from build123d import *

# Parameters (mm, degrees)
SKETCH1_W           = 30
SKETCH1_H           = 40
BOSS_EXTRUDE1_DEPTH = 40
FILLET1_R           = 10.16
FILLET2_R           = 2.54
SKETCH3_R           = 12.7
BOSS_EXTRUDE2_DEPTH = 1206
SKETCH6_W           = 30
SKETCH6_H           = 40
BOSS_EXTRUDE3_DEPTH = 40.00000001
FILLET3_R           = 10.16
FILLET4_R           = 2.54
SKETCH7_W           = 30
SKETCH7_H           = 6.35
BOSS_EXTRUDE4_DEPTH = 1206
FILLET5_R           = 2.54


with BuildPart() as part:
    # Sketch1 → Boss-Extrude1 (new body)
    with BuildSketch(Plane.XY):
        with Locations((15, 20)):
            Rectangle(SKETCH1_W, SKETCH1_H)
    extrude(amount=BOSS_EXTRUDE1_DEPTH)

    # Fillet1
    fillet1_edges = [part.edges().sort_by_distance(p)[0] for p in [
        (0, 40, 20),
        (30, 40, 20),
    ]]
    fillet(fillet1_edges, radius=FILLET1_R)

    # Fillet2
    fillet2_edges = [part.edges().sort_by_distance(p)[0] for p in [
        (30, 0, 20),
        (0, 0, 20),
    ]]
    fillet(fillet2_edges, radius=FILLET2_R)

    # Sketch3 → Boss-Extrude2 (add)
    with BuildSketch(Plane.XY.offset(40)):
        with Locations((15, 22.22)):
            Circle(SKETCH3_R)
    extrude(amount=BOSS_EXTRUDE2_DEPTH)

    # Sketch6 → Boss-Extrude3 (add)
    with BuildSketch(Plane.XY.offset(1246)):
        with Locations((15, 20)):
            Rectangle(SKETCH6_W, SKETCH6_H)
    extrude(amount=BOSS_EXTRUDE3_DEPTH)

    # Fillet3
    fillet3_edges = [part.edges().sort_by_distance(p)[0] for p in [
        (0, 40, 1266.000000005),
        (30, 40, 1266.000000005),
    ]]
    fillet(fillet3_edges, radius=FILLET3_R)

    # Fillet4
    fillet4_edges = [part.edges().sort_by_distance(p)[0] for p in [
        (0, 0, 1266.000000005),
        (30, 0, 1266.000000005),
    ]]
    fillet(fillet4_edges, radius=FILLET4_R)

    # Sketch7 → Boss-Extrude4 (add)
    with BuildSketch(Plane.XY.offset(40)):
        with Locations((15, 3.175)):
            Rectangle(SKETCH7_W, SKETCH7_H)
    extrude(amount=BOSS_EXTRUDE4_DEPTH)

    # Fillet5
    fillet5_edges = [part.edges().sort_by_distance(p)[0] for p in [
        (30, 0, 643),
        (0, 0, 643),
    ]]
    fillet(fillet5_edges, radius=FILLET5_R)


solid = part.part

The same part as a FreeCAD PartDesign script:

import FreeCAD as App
import Part
import Sketcher
from FreeCAD import Vector
Q = App.Units.Quantity


def edges_at(feature, points):
    """Names of the edges that pass closest to the given points."""
    edges = feature.Shape.Edges
    near = lambda p: min(range(len(edges)), key=lambda i: edges[i].distToShape(Part.Vertex(*p))[0])
    return sorted({f"Edge{near(p) + 1}" for p in points})


def add_polygon(sketch, points):
    """Adds a closed chain of lines whose ends are joined by coincident constraints."""
    first, n = sketch.GeometryCount, len(points)
    for a, b in zip(points, points[1:] + points[:1]):
        sketch.addGeometry(Part.LineSegment(App.Vector(*a, 0), App.Vector(*b, 0)), False)
    for i in range(n):
        sketch.addConstraint(Sketcher.Constraint("Coincident", first + i, 2, first + (i + 1) % n, 1))

doc = App.newDocument("Part")
body = doc.addObject("PartDesign::Body", "Body")

# Sketch on XY plane
sketch1 = doc.addObject("Sketcher::SketchObject", "Sketch")
body.addObject(sketch1)
sketch1.AttachmentSupport = (doc.XY_Plane, [""])
sketch1.MapMode = "FlatFace"
add_polygon(sketch1, [(0, 40), (0, 0), (30, 0), (30, 40)])  # lines 0-3
sketch1.addConstraint(Sketcher.Constraint("Vertical", 0))
sketch1.addConstraint(Sketcher.Constraint("Horizontal", 1))
sketch1.addConstraint(Sketcher.Constraint("Vertical", 2))
sketch1.addConstraint(Sketcher.Constraint("Horizontal", 3))
sketch1.addConstraint(Sketcher.Constraint("Coincident", 0, 2, -1, 1))
sketch1.addConstraint(Sketcher.Constraint("DistanceX", 1, 1, 1, 2, 30.0))
sketch1.addConstraint(Sketcher.Constraint("DistanceY", 0, 2, 0, 1, 40.0))
pad1 = doc.addObject("PartDesign::Pad", "Pad")
body.addObject(pad1)
pad1.Profile = sketch1
pad1.Length = 40
doc.recompute()

fillet = doc.addObject("PartDesign::Fillet", "Fillet")
body.addObject(fillet)
fillet.Base = (pad1, edges_at(pad1, [(0, 40, 20), (30, 40, 20)]))
fillet.Radius = Q("0.4 in")
doc.recompute()

fillet2 = doc.addObject("PartDesign::Fillet", "Fillet001")
body.addObject(fillet2)
fillet2.Base = (fillet, edges_at(fillet, [(30, 0, 20), (0, 0, 20)]))
fillet2.Radius = Q("0.1 in")

# Sketch on XY plane
sketch2 = doc.addObject("Sketcher::SketchObject", "Sketch001")
body.addObject(sketch2)
sketch2.AttachmentSupport = (doc.XY_Plane, [""])
sketch2.MapMode = "FlatFace"
sketch2.AttachmentOffset = App.Placement(Vector(0, 0, 40), App.Rotation())
sketch2.addGeometry(Part.Circle(Vector(15, 22, 0), Vector(0, 0, 1), 13), False)
sketch2.addConstraint(Sketcher.Constraint("Diameter", 0, Q("1 in")))
sketch2.addConstraint(Sketcher.Constraint("DistanceX", -1, 1, 0, 3, 15.0))
sketch2.addConstraint(Sketcher.Constraint("DistanceY", -1, 1, 0, 3, 22.22))
pad2 = doc.addObject("PartDesign::Pad", "Pad001")
body.addObject(pad2)
pad2.Profile = sketch2
pad2.Length = 1206

# Sketch on XY plane
sketch3 = doc.addObject("Sketcher::SketchObject", "Sketch002")
body.addObject(sketch3)
sketch3.AttachmentSupport = (doc.XY_Plane, [""])
sketch3.MapMode = "FlatFace"
sketch3.AttachmentOffset = App.Placement(Vector(0, 0, 1246), App.Rotation())
add_polygon(sketch3, [(0, 40), (0, 0), (30, 0), (30, 40)])  # lines 0-3
sketch3.addConstraint(Sketcher.Constraint("Vertical", 0))
sketch3.addConstraint(Sketcher.Constraint("Horizontal", 1))
sketch3.addConstraint(Sketcher.Constraint("Vertical", 2))
sketch3.addConstraint(Sketcher.Constraint("Horizontal", 3))
sketch3.addConstraint(Sketcher.Constraint("Coincident", 0, 2, -1, 1))
sketch3.addConstraint(Sketcher.Constraint("DistanceX", 1, 1, 1, 2, 30.0))
sketch3.addConstraint(Sketcher.Constraint("DistanceY", 0, 2, 0, 1, 40.0))
pad3 = doc.addObject("PartDesign::Pad", "Pad002")
body.addObject(pad3)
pad3.Profile = sketch3
pad3.Length = 40
doc.recompute()

fillet3 = doc.addObject("PartDesign::Fillet", "Fillet002")
body.addObject(fillet3)
fillet3.Base = (pad3, edges_at(pad3, [(0, 40, 1266), (30, 40, 1266)]))
fillet3.Radius = Q("0.4 in")
doc.recompute()

fillet4 = doc.addObject("PartDesign::Fillet", "Fillet003")
body.addObject(fillet4)
fillet4.Base = (fillet3, edges_at(fillet3, [(0, 0, 1266), (30, 0, 1266)]))
fillet4.Radius = Q("0.1 in")

# Sketch on XY plane
sketch4 = doc.addObject("Sketcher::SketchObject", "Sketch003")
body.addObject(sketch4)
sketch4.AttachmentSupport = (doc.XY_Plane, [""])
sketch4.MapMode = "FlatFace"
sketch4.AttachmentOffset = App.Placement(Vector(0, 0, 40), App.Rotation())
add_polygon(sketch4, [(0, 6), (0, 0), (30, 0), (30, 6)])  # lines 0-3
sketch4.addConstraint(Sketcher.Constraint("Vertical", 0))
sketch4.addConstraint(Sketcher.Constraint("Horizontal", 1))
sketch4.addConstraint(Sketcher.Constraint("Vertical", 2))
sketch4.addConstraint(Sketcher.Constraint("Horizontal", 3))
sketch4.addConstraint(Sketcher.Constraint("Coincident", 0, 2, -1, 1))
sketch4.addConstraint(Sketcher.Constraint("DistanceY", 0, 2, 0, 1, Q("0.25 in")))
sketch4.addConstraint(Sketcher.Constraint("DistanceX", 1, 1, 1, 2, 30.0))
pad4 = doc.addObject("PartDesign::Pad", "Pad003")
body.addObject(pad4)
pad4.Profile = sketch4
pad4.Length = 1206
doc.recompute()

fillet5 = doc.addObject("PartDesign::Fillet", "Fillet004")
body.addObject(fillet5)
fillet5.Base = (pad4, edges_at(pad4, [(30, 0, 643), (0, 0, 643)]))
fillet5.Radius = Q("0.1 in")

doc.recompute()
